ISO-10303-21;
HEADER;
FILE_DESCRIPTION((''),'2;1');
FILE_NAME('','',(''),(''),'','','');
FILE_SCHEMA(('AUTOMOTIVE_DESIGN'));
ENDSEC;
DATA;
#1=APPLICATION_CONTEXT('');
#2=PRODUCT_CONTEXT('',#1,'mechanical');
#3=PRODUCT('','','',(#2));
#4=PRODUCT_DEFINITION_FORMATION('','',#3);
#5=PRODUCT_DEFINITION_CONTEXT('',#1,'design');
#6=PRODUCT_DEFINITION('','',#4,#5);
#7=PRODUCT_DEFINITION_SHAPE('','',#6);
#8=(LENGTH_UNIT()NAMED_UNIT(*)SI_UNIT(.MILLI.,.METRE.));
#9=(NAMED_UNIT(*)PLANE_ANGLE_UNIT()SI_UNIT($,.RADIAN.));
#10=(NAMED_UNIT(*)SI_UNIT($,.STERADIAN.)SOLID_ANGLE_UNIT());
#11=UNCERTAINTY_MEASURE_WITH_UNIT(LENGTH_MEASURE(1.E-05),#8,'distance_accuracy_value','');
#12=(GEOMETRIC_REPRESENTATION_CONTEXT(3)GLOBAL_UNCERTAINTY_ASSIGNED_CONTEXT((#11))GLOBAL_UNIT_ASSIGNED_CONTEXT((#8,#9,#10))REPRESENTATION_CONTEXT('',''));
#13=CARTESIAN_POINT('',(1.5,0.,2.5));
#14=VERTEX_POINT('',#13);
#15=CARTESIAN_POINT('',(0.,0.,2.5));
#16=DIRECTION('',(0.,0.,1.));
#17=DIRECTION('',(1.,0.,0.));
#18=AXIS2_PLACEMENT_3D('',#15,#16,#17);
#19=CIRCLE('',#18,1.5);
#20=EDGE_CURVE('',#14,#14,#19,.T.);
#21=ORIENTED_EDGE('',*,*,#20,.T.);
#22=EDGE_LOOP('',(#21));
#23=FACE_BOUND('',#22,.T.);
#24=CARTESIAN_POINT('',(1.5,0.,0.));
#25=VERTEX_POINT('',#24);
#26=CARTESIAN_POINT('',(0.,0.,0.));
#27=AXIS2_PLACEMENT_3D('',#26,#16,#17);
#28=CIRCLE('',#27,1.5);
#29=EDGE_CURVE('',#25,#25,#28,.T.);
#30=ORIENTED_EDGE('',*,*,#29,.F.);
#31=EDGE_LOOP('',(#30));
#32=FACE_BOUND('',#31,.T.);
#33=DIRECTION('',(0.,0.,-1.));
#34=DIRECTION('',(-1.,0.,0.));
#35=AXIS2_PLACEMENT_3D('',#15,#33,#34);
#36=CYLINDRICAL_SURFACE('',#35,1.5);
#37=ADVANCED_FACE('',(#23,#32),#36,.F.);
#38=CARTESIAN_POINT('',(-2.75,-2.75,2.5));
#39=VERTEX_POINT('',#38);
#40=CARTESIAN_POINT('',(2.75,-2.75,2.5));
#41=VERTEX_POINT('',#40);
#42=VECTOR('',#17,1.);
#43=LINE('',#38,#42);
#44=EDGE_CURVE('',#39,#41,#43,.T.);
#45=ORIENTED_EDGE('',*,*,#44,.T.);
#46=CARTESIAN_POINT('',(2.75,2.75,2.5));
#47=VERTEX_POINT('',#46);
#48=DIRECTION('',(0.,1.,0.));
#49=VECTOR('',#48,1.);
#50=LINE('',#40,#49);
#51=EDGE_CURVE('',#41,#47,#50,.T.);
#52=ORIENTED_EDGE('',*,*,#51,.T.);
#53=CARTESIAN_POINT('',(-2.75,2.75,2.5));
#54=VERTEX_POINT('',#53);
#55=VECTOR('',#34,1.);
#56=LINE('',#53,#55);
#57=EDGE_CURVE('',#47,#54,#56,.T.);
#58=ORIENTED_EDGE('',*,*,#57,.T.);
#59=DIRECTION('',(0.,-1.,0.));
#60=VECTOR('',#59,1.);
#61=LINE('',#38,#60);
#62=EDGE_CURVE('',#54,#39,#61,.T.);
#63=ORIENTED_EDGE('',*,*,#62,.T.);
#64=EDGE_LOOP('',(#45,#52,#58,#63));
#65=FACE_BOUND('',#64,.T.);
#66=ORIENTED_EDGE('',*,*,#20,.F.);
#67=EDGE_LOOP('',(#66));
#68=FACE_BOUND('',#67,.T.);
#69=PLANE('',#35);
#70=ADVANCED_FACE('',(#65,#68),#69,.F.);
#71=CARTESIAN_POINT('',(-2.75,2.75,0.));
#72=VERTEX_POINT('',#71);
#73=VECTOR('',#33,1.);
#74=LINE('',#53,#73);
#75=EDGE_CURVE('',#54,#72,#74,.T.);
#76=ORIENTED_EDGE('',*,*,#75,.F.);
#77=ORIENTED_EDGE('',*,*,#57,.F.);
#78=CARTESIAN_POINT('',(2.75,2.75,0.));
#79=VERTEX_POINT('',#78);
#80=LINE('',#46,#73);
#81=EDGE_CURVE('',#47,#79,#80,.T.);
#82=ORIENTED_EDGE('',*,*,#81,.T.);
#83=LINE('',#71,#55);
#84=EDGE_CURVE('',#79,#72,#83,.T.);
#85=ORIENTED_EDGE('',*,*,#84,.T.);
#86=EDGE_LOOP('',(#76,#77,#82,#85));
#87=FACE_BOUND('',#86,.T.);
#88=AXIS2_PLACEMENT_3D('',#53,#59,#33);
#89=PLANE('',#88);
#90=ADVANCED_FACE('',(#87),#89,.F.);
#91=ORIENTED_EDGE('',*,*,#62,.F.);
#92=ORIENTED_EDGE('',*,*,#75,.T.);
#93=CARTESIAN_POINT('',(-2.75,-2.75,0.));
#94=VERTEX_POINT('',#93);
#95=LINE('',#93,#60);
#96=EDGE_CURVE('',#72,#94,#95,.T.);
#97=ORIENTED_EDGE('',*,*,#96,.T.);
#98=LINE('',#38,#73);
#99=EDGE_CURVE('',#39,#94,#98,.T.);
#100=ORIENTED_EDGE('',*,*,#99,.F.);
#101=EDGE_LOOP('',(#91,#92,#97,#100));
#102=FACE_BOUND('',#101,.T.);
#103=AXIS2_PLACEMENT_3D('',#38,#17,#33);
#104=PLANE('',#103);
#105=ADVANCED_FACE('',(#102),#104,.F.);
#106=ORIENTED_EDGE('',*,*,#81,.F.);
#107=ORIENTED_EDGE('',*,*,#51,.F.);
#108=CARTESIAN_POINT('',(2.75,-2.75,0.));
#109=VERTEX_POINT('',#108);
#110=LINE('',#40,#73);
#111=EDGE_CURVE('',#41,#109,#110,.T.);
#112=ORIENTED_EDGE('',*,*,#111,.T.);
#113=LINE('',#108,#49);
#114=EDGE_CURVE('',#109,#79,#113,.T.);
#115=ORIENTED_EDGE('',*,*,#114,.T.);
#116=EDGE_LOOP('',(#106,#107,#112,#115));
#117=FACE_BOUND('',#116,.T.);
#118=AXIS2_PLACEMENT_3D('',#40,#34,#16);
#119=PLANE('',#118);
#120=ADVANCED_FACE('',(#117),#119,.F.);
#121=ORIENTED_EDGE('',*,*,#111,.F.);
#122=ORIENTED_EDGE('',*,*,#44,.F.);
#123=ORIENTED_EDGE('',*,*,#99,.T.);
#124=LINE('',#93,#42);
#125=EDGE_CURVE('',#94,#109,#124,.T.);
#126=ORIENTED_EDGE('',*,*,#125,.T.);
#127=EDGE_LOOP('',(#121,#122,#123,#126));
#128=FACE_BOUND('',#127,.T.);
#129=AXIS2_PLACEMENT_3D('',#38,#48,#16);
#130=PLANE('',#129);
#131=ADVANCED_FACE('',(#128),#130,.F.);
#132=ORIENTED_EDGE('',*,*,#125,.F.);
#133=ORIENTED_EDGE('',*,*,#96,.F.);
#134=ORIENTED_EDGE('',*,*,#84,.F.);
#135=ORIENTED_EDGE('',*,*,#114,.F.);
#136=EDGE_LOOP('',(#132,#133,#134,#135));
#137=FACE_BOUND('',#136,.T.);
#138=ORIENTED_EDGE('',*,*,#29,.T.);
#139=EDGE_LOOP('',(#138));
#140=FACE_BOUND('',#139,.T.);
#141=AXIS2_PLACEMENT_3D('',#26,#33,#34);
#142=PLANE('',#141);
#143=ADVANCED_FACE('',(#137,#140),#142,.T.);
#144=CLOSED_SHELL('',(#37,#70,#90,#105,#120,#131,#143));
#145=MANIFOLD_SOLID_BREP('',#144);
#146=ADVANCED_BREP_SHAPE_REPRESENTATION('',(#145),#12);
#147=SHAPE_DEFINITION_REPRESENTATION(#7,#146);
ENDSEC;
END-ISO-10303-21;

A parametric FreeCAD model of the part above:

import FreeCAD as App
import Part
import Sketcher
from FreeCAD import Vector
Q = App.Units.Quantity

doc = App.newDocument("Part")
body = doc.addObject("PartDesign::Body", "Body")

# Sketch on XY plane
sketch1 = doc.addObject("Sketcher::SketchObject", "Sketch")
body.addObject(sketch1)
sketch1.AttachmentSupport = (doc.XY_Plane, [""])
sketch1.MapMode = "FlatFace"
sketch1.addGeometry([
    Part.LineSegment(Vector(-2.8, 2.8, 0), Vector(-2.8, -2.8, 0)),  # 0
    Part.LineSegment(Vector(-2.8, -2.8, 0), Vector(2.8, -2.8, 0)),  # 1
    Part.LineSegment(Vector(2.8, -2.8, 0), Vector(2.8, 2.8, 0)),  # 2
    Part.LineSegment(Vector(2.8, 2.8, 0), Vector(-2.8, 2.8, 0)),  # 3
    Part.Circle(Vector(0, 0, 0), Vector(0, 0, 1), 1.5),  # 4
], False)
sketch1.addConstraint([
    Sketcher.Constraint("Coincident", 0, 2, 1, 1),
    Sketcher.Constraint("Coincident", 1, 2, 2, 1),
    Sketcher.Constraint("Coincident", 2, 2, 3, 1),
    Sketcher.Constraint("Coincident", 3, 2, 0, 1),
    Sketcher.Constraint("Vertical", 0),
    Sketcher.Constraint("Horizontal", 1),
    Sketcher.Constraint("Vertical", 2),
    Sketcher.Constraint("Horizontal", 3),
    Sketcher.Constraint("Coincident", 4, 3, -1, 1),
    Sketcher.Constraint("Symmetric", 0, 2, 2, 2, -1, 1),
    Sketcher.Constraint("Equal", 3, 0),
    Sketcher.Constraint("Diameter", 4, Q("3 mm")),
    Sketcher.Constraint("DistanceX", 1, 1, 1, 2, Q("5.5 mm")),
])
pad1 = doc.addObject("PartDesign::Pad", "Pad")
body.addObject(pad1)
pad1.Profile = sketch1
pad1.Length = 2.5

doc.recompute()
